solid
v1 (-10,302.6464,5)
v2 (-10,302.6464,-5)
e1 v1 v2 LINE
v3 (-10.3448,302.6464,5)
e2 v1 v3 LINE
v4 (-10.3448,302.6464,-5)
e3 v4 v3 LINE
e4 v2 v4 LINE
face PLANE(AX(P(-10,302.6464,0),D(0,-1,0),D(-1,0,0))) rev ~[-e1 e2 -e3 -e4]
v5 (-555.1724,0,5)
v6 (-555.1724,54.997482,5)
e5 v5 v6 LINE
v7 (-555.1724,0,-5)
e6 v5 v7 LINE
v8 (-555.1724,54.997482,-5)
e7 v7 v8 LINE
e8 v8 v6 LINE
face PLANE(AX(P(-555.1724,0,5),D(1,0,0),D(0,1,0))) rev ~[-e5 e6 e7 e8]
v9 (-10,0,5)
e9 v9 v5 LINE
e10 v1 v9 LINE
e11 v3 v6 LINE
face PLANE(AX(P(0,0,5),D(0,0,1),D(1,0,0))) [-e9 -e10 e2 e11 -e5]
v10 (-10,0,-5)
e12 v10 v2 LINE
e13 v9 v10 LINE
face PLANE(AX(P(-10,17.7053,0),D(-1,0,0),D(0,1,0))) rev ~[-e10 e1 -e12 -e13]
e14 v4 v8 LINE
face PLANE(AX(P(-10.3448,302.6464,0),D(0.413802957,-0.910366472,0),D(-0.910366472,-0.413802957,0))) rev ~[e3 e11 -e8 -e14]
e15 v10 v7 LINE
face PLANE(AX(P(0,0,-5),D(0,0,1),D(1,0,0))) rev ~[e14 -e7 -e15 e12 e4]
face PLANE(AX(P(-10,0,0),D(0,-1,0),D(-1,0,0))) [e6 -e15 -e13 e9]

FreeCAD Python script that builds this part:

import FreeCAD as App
import Part
import Sketcher
from FreeCAD import Vector
Q = App.Units.Quantity

doc = App.newDocument("Part")
body = doc.addObject("PartDesign::Body", "Body")

# Sketch on XY plane
sketch1 = body.newObject("Sketcher::SketchObject", "Sketch")
sketch1.AttachmentSupport = (doc.getObject("XY_Plane"), [""])
sketch1.MapMode = "FlatFace"
sketch1.addGeometry([
    Part.LineSegment(Vector(-10, 302.65, 0), Vector(-10.34, 302.65, 0)),  # 0
    Part.LineSegment(Vector(-10.34, 302.65, 0), Vector(-559.17, 53.18, 0)),  # 1
    Part.LineSegment(Vector(-559.17, 53.18, 0), Vector(-559.17, 0, 0)),  # 2
    Part.LineSegment(Vector(-559.17, 0, 0), Vector(-10, 0, 0)),  # 3
    Part.LineSegment(Vector(-10, 0, 0), Vector(-10, 302.65, 0)),  # 4
], False)
sketch1.addConstraint([
    Sketcher.Constraint("Coincident", 0, 2, 1, 1),
    Sketcher.Constraint("Coincident", 1, 2, 2, 1),
    Sketcher.Constraint("Coincident", 2, 2, 3, 1),
    Sketcher.Constraint("Coincident", 3, 2, 4, 1),
    Sketcher.Constraint("Coincident", 4, 2, 0, 1),
    Sketcher.Constraint("Horizontal", 0),
    Sketcher.Constraint("Vertical", 2),
    Sketcher.Constraint("Horizontal", 3),
    Sketcher.Constraint("Vertical", 4),
    Sketcher.Constraint("PointOnObject", 2, 2, -1),
    Sketcher.Constraint("DistanceX", 3, 2, -1, 1, Q("10 mm")),
    Sketcher.Constraint("DistanceX", 0, 2, 0, 1, Q("0.3448 mm")),
    Sketcher.Constraint("DistanceX", 3, 1, 3, 2, Q("549.1724 mm")),
    Sketcher.Constraint("DistanceY", 2, 2, 2, 1, Q("53.1793 mm")),
    Sketcher.Constraint("DistanceY", 4, 1, 4, 2, Q("302.6464 mm")),
])
pad1 = body.newObject("PartDesign::Pad", "Pad")
pad1.Profile = sketch1
pad1.Length = 10
pad1.Midplane = True

# Sketch on XY plane
sketch2 = body.newObject("Sketcher::SketchObject", "Sketch001")
sketch2.AttachmentSupport = (doc.getObject("XY_Plane"), [""])
sketch2.MapMode = "FlatFace"
sketch2.AttachmentOffset = App.Placement(Vector(0, 0, 5), App.Rotation())
sketch2.addGeometry([
    Part.LineSegment(Vector(-559.2, 80, 0), Vector(-559.2, 0, 0)),
    Part.LineSegment(Vector(-559.2, 0, 0), Vector(-555.2, 0, 0)),
    Part.LineSegment(Vector(-555.2, 0, 0), Vector(-555.2, 80, 0)),
    Part.LineSegment(Vector(-555.2, 80, 0), Vector(-559.2, 80, 0)),
], False)
sketch2.addConstraint([
    Sketcher.Constraint("Coincident", 0, 2, 1, 1),
    Sketcher.Constraint("Coincident", 1, 2, 2, 1),
    Sketcher.Constraint("Coincident", 2, 2, 3, 1),
    Sketcher.Constraint("Coincident", 3, 2, 0, 1),
    Sketcher.Constraint("Vertical", 0),
    Sketcher.Constraint("Horizontal", 1),
    Sketcher.Constraint("Vertical", 2),
    Sketcher.Constraint("Horizontal", 3),
    Sketcher.Constraint("PointOnObject", 0, 2, -1),
    Sketcher.Constraint("DistanceX", 1, 1, 1, 2, Q("4 mm")),
    Sketcher.Constraint("DistanceY", 0, 2, 0, 1, Q("80 mm")),
    Sketcher.Constraint("DistanceX", 0, 2, -1, 1, Q("559.1724 mm")),
])
pocket1 = body.newObject("PartDesign::Pocket", "Pocket")
pocket1.Profile = sketch2
pocket1.Type = "ThroughAll"

doc.recompute()
